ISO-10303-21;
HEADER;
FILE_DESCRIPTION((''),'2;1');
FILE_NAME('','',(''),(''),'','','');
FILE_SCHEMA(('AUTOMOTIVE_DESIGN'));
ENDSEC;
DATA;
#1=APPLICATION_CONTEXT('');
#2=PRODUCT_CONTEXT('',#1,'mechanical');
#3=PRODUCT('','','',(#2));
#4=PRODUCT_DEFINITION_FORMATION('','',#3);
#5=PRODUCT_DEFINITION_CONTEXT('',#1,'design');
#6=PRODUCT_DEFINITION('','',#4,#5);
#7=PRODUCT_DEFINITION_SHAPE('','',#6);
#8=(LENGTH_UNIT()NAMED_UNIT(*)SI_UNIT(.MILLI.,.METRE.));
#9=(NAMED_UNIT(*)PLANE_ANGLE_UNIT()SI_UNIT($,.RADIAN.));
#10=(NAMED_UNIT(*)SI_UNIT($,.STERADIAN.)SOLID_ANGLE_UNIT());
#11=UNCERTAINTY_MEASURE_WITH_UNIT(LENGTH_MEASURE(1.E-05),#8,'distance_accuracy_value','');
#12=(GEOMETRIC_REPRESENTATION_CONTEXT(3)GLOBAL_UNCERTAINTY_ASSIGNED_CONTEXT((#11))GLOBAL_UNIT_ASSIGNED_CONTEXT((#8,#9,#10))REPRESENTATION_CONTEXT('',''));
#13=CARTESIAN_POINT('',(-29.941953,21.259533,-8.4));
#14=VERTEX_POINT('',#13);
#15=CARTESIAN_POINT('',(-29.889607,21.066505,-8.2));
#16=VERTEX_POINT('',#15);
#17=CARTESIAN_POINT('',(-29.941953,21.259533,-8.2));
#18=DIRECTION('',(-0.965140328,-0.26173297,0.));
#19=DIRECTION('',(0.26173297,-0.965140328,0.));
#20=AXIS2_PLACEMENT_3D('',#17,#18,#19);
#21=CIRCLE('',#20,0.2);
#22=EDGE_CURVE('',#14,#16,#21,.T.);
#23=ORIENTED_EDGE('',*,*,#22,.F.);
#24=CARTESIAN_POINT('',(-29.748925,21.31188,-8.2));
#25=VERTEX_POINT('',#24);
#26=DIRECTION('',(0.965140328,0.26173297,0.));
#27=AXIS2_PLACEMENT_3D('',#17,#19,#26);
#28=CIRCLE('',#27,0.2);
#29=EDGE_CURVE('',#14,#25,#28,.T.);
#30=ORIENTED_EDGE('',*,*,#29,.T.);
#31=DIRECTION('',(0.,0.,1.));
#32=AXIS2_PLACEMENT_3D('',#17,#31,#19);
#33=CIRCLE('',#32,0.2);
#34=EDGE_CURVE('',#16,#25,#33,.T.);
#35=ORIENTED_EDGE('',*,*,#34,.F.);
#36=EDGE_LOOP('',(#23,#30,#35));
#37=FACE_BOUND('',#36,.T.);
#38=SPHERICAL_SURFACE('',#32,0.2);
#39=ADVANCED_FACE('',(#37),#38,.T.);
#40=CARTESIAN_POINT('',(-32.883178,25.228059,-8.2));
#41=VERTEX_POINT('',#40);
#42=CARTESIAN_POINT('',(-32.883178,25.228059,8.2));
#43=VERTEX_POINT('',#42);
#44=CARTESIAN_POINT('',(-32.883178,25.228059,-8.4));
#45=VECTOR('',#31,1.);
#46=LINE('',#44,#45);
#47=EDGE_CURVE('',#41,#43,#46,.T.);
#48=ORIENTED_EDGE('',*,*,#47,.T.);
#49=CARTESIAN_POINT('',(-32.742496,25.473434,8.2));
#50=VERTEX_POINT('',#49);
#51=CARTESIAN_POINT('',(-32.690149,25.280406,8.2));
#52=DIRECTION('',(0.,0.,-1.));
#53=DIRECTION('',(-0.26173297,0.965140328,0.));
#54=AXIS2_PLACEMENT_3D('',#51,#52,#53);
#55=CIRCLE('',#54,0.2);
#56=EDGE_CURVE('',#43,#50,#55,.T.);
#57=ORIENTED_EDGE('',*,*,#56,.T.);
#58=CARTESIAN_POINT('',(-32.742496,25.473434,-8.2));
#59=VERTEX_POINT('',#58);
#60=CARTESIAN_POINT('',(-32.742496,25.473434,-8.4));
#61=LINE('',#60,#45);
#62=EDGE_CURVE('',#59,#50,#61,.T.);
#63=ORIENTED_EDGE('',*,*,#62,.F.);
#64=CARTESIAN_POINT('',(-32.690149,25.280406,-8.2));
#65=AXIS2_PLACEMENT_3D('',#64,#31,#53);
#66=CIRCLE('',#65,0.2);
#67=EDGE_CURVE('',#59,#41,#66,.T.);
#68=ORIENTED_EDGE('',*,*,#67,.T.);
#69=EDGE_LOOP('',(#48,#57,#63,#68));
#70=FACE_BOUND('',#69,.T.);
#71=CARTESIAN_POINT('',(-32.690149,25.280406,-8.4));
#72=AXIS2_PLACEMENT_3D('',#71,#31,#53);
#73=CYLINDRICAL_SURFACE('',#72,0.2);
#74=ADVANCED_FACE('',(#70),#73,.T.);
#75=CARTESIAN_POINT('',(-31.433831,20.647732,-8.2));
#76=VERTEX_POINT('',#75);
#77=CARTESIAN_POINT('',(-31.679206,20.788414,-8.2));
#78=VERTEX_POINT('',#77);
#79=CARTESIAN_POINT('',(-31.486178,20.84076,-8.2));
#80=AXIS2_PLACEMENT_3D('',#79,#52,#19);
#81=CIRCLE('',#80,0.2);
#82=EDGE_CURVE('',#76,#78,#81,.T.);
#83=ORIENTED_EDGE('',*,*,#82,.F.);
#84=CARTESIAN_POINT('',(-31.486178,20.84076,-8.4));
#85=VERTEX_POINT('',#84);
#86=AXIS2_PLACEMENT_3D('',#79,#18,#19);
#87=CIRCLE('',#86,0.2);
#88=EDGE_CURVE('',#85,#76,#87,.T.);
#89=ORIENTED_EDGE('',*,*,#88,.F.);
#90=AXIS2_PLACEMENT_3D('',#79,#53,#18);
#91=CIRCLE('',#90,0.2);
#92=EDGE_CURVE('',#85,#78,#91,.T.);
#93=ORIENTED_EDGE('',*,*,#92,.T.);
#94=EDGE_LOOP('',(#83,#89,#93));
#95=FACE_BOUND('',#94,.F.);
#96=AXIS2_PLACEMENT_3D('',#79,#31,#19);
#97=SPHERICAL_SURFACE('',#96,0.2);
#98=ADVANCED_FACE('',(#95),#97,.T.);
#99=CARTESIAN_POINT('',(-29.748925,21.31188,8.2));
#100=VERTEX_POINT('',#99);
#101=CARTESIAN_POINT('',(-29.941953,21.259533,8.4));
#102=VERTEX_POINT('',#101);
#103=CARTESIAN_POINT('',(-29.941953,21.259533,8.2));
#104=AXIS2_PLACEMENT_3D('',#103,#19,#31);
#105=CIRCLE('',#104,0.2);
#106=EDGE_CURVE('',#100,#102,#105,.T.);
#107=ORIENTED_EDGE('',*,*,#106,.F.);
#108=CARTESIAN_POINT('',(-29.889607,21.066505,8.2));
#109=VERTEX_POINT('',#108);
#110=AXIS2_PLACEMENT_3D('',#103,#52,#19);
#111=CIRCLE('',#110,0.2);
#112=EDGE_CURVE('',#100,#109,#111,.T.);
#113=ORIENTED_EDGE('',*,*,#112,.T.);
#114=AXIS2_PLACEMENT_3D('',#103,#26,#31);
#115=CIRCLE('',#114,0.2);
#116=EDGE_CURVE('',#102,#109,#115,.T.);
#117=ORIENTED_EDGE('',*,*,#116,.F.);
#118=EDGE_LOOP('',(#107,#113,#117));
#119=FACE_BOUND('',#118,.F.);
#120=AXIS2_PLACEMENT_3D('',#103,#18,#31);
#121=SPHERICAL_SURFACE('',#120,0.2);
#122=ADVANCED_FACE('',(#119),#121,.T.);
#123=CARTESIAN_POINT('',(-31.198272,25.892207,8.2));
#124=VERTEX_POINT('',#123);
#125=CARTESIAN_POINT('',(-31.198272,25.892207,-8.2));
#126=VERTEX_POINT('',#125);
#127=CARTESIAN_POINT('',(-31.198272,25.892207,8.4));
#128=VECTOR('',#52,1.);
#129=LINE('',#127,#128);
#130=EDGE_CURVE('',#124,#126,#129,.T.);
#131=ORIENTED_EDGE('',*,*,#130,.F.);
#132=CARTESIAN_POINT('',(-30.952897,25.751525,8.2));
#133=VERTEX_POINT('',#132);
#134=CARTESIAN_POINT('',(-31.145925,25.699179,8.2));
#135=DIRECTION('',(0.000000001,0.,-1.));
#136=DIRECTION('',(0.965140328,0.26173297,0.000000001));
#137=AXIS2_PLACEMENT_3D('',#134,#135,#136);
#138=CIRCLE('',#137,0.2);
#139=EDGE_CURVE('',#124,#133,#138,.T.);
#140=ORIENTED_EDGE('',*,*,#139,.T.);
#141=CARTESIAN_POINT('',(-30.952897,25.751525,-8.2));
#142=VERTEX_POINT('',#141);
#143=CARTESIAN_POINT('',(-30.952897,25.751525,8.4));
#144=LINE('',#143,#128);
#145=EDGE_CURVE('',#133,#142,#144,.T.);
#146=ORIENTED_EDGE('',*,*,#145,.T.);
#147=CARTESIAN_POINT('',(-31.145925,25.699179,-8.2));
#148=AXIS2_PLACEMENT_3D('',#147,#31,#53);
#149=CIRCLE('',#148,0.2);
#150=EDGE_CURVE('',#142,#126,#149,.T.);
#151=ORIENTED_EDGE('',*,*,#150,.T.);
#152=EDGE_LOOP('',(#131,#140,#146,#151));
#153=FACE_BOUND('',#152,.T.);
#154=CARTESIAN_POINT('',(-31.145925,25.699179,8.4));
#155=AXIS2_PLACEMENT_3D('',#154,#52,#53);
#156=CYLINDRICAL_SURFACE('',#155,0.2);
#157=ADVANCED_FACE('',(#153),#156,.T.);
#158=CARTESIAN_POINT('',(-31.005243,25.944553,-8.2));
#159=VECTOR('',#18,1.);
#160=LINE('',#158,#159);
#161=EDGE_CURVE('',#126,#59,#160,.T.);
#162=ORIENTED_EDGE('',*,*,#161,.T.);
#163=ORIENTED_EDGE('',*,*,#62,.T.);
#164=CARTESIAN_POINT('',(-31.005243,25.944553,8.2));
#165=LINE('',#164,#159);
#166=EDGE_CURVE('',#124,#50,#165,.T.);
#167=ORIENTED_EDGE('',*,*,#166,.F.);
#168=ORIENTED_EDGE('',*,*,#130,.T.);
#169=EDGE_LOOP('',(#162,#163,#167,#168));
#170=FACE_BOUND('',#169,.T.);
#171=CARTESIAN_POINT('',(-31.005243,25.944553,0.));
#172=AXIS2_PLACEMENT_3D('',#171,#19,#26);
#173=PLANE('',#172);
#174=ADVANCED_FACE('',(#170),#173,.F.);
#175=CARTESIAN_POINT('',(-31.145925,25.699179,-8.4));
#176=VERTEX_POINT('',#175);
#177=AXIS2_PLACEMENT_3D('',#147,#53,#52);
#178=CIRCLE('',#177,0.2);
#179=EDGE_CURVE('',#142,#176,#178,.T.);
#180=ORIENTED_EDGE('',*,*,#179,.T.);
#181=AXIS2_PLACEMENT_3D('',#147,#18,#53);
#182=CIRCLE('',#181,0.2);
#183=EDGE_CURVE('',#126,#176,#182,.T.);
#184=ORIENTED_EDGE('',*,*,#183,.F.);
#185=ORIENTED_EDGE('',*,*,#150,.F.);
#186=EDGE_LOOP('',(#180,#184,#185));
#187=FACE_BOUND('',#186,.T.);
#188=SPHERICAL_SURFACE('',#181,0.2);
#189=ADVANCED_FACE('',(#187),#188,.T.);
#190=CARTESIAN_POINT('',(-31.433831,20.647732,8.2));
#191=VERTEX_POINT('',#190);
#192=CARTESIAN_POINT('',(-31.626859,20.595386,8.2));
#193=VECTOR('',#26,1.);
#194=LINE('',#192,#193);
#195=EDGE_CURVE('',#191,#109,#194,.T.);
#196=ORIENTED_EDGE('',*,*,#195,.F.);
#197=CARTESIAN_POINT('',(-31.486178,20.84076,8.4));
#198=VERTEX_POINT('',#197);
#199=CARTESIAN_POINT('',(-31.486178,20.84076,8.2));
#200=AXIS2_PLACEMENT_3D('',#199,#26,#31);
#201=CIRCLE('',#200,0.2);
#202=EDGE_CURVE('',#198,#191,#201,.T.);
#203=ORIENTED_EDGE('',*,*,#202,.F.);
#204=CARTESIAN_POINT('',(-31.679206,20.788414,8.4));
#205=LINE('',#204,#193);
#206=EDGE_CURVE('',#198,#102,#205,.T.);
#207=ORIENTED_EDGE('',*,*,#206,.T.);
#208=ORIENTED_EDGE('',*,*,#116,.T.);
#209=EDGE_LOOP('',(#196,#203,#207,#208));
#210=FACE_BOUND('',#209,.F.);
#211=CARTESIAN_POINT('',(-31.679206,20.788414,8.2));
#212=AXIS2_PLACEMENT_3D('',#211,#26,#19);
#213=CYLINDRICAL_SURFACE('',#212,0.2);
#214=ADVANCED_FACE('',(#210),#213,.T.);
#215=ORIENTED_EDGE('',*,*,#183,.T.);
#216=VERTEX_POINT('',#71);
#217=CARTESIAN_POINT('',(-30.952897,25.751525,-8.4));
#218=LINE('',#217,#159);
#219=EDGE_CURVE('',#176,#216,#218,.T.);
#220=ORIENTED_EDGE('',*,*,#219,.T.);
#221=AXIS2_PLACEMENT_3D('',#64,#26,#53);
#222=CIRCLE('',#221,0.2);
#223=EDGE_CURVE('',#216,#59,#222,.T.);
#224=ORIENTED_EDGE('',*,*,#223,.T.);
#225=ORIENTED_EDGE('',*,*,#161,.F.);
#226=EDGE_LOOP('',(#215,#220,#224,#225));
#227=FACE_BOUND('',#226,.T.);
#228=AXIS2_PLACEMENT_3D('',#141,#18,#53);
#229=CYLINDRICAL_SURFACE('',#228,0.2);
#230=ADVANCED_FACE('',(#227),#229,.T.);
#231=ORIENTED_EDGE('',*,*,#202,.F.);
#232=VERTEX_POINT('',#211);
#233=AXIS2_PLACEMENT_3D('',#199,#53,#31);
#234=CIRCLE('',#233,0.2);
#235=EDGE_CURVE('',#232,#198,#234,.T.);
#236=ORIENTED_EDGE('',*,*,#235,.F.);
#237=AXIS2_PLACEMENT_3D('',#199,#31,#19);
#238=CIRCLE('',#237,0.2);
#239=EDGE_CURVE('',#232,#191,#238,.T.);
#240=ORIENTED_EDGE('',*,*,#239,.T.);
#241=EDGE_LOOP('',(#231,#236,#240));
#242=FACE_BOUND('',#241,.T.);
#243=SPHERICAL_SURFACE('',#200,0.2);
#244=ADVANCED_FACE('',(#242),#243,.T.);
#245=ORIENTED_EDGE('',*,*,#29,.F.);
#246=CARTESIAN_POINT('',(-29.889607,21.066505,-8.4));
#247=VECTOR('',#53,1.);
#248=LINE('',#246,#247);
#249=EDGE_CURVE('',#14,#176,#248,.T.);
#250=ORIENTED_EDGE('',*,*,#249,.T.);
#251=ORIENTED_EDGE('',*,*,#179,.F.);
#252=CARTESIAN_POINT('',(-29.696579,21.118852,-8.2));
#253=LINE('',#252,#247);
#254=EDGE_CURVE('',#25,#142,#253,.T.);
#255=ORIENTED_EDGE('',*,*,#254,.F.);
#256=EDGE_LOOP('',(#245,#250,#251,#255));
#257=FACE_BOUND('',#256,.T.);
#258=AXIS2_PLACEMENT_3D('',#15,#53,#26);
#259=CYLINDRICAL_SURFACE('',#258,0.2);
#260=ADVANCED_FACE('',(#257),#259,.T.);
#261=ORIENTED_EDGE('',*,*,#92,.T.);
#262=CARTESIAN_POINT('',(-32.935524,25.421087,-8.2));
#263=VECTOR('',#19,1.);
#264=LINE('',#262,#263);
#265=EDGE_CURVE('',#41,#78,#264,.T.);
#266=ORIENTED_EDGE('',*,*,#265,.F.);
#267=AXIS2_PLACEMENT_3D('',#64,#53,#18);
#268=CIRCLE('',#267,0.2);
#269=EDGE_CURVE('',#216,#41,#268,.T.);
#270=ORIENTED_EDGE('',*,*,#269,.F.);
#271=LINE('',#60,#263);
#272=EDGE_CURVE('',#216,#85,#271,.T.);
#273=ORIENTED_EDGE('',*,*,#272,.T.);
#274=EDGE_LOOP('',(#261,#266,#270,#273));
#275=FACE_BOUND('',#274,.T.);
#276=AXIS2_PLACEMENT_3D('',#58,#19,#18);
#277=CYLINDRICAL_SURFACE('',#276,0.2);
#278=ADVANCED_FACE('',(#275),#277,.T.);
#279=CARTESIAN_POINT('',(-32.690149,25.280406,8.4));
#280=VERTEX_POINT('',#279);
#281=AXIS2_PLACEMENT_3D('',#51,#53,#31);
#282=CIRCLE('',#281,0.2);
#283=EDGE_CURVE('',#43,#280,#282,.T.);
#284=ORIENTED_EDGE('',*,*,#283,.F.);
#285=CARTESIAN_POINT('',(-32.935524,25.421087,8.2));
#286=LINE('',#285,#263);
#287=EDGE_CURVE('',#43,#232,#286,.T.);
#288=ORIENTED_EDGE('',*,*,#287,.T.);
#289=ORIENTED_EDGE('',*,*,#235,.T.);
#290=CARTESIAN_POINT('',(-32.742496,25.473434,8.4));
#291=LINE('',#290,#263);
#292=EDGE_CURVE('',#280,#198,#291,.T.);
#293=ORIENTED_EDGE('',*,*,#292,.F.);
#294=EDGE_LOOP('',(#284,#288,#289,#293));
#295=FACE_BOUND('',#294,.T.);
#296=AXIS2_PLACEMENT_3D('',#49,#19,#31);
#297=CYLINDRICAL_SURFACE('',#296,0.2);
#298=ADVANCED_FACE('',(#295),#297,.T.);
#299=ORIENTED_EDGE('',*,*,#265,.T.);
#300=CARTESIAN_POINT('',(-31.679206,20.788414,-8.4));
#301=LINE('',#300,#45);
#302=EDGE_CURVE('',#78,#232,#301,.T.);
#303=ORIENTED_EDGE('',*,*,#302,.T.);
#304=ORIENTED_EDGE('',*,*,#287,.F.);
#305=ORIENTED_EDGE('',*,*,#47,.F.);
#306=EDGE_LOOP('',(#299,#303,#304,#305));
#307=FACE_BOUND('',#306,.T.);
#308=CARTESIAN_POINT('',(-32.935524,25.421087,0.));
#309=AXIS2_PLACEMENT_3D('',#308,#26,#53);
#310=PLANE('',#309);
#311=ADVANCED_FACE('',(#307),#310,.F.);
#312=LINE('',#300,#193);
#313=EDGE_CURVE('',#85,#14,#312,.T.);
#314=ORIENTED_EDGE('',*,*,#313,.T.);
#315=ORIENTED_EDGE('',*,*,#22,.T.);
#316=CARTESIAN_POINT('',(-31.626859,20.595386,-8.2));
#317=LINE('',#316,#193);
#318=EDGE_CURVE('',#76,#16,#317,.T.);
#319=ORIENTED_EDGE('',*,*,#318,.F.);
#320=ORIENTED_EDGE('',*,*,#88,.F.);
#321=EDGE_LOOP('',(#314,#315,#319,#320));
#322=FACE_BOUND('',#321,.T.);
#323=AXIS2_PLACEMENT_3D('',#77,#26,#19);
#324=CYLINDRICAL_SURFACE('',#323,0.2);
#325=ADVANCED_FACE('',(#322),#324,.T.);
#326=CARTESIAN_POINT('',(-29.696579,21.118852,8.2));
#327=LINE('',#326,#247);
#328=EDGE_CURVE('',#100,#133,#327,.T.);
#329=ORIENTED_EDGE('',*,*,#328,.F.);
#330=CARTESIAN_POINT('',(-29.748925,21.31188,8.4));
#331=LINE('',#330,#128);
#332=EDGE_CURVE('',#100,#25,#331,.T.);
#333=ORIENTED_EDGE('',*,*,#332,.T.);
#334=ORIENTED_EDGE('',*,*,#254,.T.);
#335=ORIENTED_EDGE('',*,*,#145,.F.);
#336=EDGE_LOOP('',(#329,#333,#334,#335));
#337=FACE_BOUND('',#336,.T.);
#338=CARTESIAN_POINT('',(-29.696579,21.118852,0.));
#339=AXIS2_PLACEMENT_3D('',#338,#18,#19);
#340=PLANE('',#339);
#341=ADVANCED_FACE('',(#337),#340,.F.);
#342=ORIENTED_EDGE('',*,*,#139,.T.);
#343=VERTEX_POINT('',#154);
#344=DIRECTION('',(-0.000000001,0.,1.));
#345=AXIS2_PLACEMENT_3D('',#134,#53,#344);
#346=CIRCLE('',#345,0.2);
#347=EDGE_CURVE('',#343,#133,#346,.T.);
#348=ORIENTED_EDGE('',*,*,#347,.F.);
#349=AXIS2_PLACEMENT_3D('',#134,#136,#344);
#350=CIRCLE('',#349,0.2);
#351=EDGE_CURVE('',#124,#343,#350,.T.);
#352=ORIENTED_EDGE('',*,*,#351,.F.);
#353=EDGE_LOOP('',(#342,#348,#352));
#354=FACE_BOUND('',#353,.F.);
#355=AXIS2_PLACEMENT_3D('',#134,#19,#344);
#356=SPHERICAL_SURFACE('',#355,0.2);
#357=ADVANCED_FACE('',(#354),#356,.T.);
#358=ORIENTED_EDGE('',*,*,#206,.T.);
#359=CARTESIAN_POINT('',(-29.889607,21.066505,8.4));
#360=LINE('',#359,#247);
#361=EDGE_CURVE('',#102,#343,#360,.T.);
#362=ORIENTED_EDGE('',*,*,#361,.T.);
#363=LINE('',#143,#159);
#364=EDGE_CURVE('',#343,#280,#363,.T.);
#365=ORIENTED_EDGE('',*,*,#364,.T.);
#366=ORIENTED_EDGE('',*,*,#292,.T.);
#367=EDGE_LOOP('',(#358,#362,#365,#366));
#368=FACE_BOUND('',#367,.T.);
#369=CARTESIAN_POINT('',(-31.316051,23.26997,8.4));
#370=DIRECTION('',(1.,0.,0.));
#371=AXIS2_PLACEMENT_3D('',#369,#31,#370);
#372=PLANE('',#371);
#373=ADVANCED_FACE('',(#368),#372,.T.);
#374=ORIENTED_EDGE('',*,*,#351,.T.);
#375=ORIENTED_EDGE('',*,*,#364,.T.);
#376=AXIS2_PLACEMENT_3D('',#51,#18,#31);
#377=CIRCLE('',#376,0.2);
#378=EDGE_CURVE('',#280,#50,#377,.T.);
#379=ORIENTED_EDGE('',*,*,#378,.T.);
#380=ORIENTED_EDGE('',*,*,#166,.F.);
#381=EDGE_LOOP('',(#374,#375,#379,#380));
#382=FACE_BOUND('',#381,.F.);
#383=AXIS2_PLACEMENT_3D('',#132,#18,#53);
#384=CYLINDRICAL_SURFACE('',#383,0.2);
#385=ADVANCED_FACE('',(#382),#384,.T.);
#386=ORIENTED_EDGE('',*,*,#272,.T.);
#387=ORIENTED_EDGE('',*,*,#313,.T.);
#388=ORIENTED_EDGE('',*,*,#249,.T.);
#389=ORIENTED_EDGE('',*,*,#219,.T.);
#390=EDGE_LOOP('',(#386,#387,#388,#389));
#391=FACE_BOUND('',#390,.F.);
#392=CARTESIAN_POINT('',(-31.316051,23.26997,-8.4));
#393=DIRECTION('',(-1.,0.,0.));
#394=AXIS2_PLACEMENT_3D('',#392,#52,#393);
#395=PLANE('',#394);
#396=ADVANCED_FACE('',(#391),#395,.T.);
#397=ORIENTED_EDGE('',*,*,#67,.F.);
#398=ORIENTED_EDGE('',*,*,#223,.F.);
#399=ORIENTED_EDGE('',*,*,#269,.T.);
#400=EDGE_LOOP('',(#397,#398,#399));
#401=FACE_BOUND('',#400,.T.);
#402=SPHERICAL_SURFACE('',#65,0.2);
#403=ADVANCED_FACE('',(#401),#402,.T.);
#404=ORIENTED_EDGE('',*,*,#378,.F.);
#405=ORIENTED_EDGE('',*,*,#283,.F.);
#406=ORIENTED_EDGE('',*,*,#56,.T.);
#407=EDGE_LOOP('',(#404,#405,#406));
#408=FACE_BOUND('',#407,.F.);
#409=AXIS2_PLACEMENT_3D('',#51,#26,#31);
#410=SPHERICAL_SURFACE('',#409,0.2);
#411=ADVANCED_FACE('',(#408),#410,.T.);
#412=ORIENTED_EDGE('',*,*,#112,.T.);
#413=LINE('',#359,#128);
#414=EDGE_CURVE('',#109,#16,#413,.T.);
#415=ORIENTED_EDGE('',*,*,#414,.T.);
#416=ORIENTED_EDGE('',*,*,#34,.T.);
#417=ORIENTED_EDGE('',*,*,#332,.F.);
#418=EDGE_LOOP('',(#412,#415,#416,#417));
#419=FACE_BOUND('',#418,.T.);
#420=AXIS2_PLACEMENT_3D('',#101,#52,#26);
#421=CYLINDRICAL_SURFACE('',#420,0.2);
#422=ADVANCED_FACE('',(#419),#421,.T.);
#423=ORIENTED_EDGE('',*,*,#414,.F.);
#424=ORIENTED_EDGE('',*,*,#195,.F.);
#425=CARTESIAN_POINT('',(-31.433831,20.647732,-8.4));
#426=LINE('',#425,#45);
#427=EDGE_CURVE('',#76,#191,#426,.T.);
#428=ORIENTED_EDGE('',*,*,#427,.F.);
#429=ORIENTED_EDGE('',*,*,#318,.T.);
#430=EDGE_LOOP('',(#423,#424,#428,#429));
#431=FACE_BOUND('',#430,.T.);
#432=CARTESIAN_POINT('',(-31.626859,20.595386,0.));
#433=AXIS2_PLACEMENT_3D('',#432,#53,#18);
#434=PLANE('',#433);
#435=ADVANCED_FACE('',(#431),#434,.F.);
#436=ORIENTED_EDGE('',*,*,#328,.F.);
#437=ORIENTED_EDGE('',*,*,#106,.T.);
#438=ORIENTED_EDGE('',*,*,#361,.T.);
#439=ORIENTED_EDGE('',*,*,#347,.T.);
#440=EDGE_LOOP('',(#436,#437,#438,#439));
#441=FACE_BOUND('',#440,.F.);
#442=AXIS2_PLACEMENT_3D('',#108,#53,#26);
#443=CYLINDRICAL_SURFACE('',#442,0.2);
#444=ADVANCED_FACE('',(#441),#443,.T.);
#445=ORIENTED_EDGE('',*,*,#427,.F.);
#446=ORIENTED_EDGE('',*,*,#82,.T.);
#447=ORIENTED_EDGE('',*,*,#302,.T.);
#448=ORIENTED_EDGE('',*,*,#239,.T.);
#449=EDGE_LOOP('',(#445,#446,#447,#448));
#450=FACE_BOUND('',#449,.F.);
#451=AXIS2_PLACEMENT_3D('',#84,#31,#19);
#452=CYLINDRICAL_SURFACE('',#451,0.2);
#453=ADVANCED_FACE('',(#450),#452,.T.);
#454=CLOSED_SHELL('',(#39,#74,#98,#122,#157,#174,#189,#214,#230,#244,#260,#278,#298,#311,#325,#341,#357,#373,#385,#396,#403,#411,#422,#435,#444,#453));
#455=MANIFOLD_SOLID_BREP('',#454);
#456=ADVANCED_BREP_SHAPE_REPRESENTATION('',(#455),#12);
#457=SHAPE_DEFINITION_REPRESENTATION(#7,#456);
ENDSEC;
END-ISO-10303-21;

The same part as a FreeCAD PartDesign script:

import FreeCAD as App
import Part
import Sketcher

doc = App.newDocument("Part")
body = doc.addObject("PartDesign::Body", "Body")

sketch1 = doc.addObject("Sketcher::SketchObject", "Sketch")
body.addObject(sketch1)
sketch1.AttachmentSupport = (doc.XY_Plane, [""])
sketch1.MapMode = "FlatFace"
sketch1.addGeometry(Part.LineSegment(App.Vector(-31, 25.9, 0), App.Vector(-32.9, 25.4, 0)), False)
sketch1.addGeometry(Part.LineSegment(App.Vector(-32.9, 25.4, 0), App.Vector(-31.6, 20.6, 0)), False)
sketch1.addGeometry(Part.LineSegment(App.Vector(-31.6, 20.6, 0), App.Vector(-29.7, 21.1, 0)), False)
sketch1.addGeometry(Part.LineSegment(App.Vector(-29.7, 21.1, 0), App.Vector(-31, 25.9, 0)), False)
sketch1.addConstraint(Sketcher.Constraint("Coincident", 0, 2, 1, 1))
sketch1.addConstraint(Sketcher.Constraint("Coincident", 1, 2, 2, 1))
sketch1.addConstraint(Sketcher.Constraint("Coincident", 2, 2, 3, 1))
sketch1.addConstraint(Sketcher.Constraint("Coincident", 3, 2, 0, 1))
sketch1.addConstraint(Sketcher.Constraint("Perpendicular", 0, 1))
sketch1.addConstraint(Sketcher.Constraint("Perpendicular", 1, 2))
sketch1.addConstraint(Sketcher.Constraint("Perpendicular", 2, 3))
sketch1.addConstraint(Sketcher.Constraint("Distance", 0, 2.0))
sketch1.addConstraint(Sketcher.Constraint("Distance", 1, 5.0))
sketch1.addConstraint(Sketcher.Constraint("DistanceY", 1, 2, 0, 2, 4.825702))
sketch1.addConstraint(Sketcher.Constraint("DistanceX", 1, 2, -1, 1, 31.626859))
sketch1.addConstraint(Sketcher.Constraint("DistanceY", -1, 1, 2, 2, 21.118852))
pad1 = doc.addObject("PartDesign::Pad", "Pad")
body.addObject(pad1)
pad1.Profile = sketch1
pad1.Length = 8.4
body2 = doc.addObject("PartDesign::Body", "Body001")
doc.recompute()

body2.BaseFeature = body
doc.recompute()

mirroring = doc.addObject("Part::Mirroring", "Mirroring")
mirroring.Source = body
mirroring.Base = App.Vector(0, 0, 0)
mirroring.Normal = App.Vector(0, 0, 1)
body3 = doc.addObject("PartDesign::Body", "Body002")
body3.BaseFeature = mirroring
boolean = doc.addObject("PartDesign::Boolean", "Boolean")
body2.addObject(boolean)
boolean.Type = "Fuse"
boolean.addObjects([body3])
doc.recompute()

fillet = doc.addObject("PartDesign::Fillet", "Fillet")
body2.addObject(fillet)
fillet.Base = (boolean, ["Edge1"])
fillet.UseAllEdges = True
fillet.Radius = 0.2
mirroring.Visibility = False

doc.recompute()
